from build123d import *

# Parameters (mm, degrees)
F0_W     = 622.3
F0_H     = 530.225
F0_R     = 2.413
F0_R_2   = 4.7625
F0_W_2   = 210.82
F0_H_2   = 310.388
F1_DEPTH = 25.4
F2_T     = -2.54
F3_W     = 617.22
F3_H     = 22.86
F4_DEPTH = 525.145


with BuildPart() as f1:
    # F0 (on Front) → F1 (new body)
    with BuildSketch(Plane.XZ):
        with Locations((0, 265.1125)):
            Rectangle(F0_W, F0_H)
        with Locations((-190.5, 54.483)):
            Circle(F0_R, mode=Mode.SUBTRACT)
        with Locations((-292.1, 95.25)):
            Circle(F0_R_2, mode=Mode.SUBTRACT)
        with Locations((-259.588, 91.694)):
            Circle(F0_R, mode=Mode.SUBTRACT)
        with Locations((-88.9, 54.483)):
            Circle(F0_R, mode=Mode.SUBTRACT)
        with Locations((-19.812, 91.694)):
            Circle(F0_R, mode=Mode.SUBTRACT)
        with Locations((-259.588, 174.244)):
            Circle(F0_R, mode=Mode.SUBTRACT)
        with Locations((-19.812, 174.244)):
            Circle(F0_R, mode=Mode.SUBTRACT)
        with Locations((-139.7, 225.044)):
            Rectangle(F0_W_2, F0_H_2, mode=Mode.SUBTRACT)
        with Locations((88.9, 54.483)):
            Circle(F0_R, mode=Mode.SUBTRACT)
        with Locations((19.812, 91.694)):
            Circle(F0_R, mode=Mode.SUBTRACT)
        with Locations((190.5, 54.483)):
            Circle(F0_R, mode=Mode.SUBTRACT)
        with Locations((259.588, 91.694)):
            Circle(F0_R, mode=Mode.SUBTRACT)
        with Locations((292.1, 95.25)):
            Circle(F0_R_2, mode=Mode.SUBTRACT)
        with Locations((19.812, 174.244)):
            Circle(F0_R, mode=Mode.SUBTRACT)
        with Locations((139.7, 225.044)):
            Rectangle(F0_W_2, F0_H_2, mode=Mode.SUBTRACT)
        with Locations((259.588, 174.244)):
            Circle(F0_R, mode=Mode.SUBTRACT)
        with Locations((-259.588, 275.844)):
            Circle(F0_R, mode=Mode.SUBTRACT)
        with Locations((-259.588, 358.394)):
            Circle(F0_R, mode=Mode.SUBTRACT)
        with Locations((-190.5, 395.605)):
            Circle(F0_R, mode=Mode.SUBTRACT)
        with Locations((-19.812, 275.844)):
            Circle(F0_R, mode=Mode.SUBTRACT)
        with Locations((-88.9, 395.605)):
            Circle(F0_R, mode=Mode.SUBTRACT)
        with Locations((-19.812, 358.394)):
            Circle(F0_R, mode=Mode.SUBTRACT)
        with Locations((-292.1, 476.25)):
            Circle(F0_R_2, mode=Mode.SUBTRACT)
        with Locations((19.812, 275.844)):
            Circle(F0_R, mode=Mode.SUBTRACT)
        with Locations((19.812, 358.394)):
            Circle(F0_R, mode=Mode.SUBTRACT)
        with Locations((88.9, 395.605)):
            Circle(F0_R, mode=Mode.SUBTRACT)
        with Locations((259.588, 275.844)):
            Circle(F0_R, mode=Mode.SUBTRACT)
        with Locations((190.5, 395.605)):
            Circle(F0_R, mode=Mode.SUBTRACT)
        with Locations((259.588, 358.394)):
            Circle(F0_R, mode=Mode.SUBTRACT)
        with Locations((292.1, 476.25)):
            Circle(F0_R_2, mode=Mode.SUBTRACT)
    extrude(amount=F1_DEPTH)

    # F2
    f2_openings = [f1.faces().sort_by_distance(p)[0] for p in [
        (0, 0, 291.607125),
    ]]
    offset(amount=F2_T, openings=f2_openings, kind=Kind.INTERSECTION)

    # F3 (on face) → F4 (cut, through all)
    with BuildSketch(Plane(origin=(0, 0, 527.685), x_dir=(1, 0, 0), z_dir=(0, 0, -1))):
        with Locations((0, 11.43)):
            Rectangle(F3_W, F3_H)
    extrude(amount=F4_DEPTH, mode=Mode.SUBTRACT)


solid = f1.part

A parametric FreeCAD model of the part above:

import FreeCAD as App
import Part
import Sketcher
Q = App.Units.Quantity


def faces_at(feature, points):
    """Names of the faces that lie closest to the given points."""
    faces = feature.Shape.Faces
    near = lambda p: min(range(len(faces)), key=lambda i: faces[i].distToShape(Part.Vertex(*p))[0])
    return sorted({f"Face{near(p) + 1}" for p in points})


def add_polygon(sketch, points):
    """Adds a closed chain of lines whose ends are joined by coincident constraints."""
    first, n = sketch.GeometryCount, len(points)
    for a, b in zip(points, points[1:] + points[:1]):
        sketch.addGeometry(Part.LineSegment(App.Vector(*a, 0), App.Vector(*b, 0)), False)
    for i in range(n):
        sketch.addConstraint(Sketcher.Constraint("Coincident", first + i, 2, first + (i + 1) % n, 1))

doc = App.newDocument("Part")
body = doc.addObject("PartDesign::Body", "Body")

# Sketch on XZ plane
sketch1 = body.newObject("Sketcher::SketchObject", "Sketch")
sketch1.AttachmentSupport = (doc.getObject("XZ_Plane"), [""])
sketch1.MapMode = "FlatFace"
add_polygon(sketch1, [(-311.1, 530.2), (-311.1, 0), (311.1, 0), (311.1, 530.2)])  # lines 0-3
sketch1.addGeometry(Part.Circle(App.Vector(-292.1, 95.2, 0), App.Vector(0, 0, 1), 4.8), False)  # 4
sketch1.addGeometry(Part.Circle(App.Vector(-259.6, 91.7, 0), App.Vector(0, 0, 1), 2.4), False)  # 5
sketch1.addGeometry(Part.Circle(App.Vector(-190.5, 54.5, 0), App.Vector(0, 0, 1), 2.4), False)  # 6
sketch1.addGeometry(Part.Circle(App.Vector(-88.9, 54.5, 0), App.Vector(0, 0, 1), 2.4), False)  # 7
sketch1.addGeometry(Part.Circle(App.Vector(-19.8, 91.7, 0), App.Vector(0, 0, 1), 2.4), False)  # 8
sketch1.addGeometry(Part.Circle(App.Vector(-259.6, 174.2, 0), App.Vector(0, 0, 1), 2.4), False)  # 9
sketch1.addGeometry(Part.Circle(App.Vector(-19.8, 174.2, 0), App.Vector(0, 0, 1), 2.4), False)  # 10
add_polygon(sketch1, [(-34.3, 69.8), (-245.1, 69.8), (-245.1, 380.2), (-34.3, 380.2)])  # lines 11-14
sketch1.addGeometry(Part.Circle(App.Vector(19.8, 91.7, 0), App.Vector(0, 0, 1), 2.4), False)  # 15
sketch1.addGeometry(Part.Circle(App.Vector(88.9, 54.5, 0), App.Vector(0, 0, 1), 2.4), False)  # 16
sketch1.addGeometry(Part.Circle(App.Vector(190.5, 54.5, 0), App.Vector(0, 0, 1), 2.4), False)  # 17
sketch1.addGeometry(Part.Circle(App.Vector(259.6, 91.7, 0), App.Vector(0, 0, 1), 2.4), False)  # 18
sketch1.addGeometry(Part.Circle(App.Vector(292.1, 95.2, 0), App.Vector(0, 0, 1), 4.8), False)  # 19
sketch1.addGeometry(Part.Circle(App.Vector(19.8, 174.2, 0), App.Vector(0, 0, 1), 2.4), False)  # 20
add_polygon(sketch1, [(245.1, 69.8), (34.3, 69.8), (34.3, 380.2), (245.1, 380.2)])  # lines 21-24
sketch1.addGeometry(Part.Circle(App.Vector(259.6, 174.2, 0), App.Vector(0, 0, 1), 2.4), False)  # 25
sketch1.addGeometry(Part.Circle(App.Vector(-259.6, 275.8, 0), App.Vector(0, 0, 1), 2.4), False)  # 26
sketch1.addGeometry(Part.Circle(App.Vector(-259.6, 358.4, 0), App.Vector(0, 0, 1), 2.4), False)  # 27
sketch1.addGeometry(Part.Circle(App.Vector(-19.8, 275.8, 0), App.Vector(0, 0, 1), 2.4), False)  # 28
sketch1.addGeometry(Part.Circle(App.Vector(-19.8, 358.4, 0), App.Vector(0, 0, 1), 2.4), False)  # 29
sketch1.addGeometry(Part.Circle(App.Vector(-190.5, 395.6, 0), App.Vector(0, 0, 1), 2.4), False)  # 30
sketch1.addGeometry(Part.Circle(App.Vector(-292.1, 476.2, 0), App.Vector(0, 0, 1), 4.8), False)  # 31
sketch1.addGeometry(Part.Circle(App.Vector(-88.9, 395.6, 0), App.Vector(0, 0, 1), 2.4), False)  # 32
sketch1.addGeometry(Part.Circle(App.Vector(19.8, 275.8, 0), App.Vector(0, 0, 1), 2.4), False)  # 33
sketch1.addGeometry(Part.Circle(App.Vector(19.8, 358.4, 0), App.Vector(0, 0, 1), 2.4), False)  # 34
sketch1.addGeometry(Part.Circle(App.Vector(259.6, 275.8, 0), App.Vector(0, 0, 1), 2.4), False)  # 35
sketch1.addGeometry(Part.Circle(App.Vector(259.6, 358.4, 0), App.Vector(0, 0, 1), 2.4), False)  # 36
sketch1.addGeometry(Part.Circle(App.Vector(88.9, 395.6, 0), App.Vector(0, 0, 1), 2.4), False)  # 37
sketch1.addGeometry(Part.Circle(App.Vector(190.5, 395.6, 0), App.Vector(0, 0, 1), 2.4), False)  # 38
sketch1.addGeometry(Part.Circle(App.Vector(292.1, 476.2, 0), App.Vector(0, 0, 1), 4.8), False)  # 39
sketch1.addConstraint(Sketcher.Constraint("Vertical", 0))
sketch1.addConstraint(Sketcher.Constraint("Horizontal", 1))
sketch1.addConstraint(Sketcher.Constraint("Vertical", 2))
sketch1.addConstraint(Sketcher.Constraint("Horizontal", 3))
sketch1.addConstraint(Sketcher.Constraint("Horizontal", 11))
sketch1.addConstraint(Sketcher.Constraint("Vertical", 12))
sketch1.addConstraint(Sketcher.Constraint("Horizontal", 13))
sketch1.addConstraint(Sketcher.Constraint("Vertical", 14))
sketch1.addConstraint(Sketcher.Constraint("Horizontal", 21))
sketch1.addConstraint(Sketcher.Constraint("Vertical", 22))
sketch1.addConstraint(Sketcher.Constraint("Horizontal", 23))
sketch1.addConstraint(Sketcher.Constraint("Vertical", 24))
sketch1.addConstraint(Sketcher.Constraint("Equal", 5, 6))
sketch1.addConstraint(Sketcher.Constraint("Equal", 6, 7))
sketch1.addConstraint(Sketcher.Constraint("Equal", 7, 8))
sketch1.addConstraint(Sketcher.Constraint("Equal", 8, 9))
sketch1.addConstraint(Sketcher.Constraint("Equal", 9, 10))
sketch1.addConstraint(Sketcher.Constraint("Equal", 10, 15))
sketch1.addConstraint(Sketcher.Constraint("Equal", 15, 16))
sketch1.addConstraint(Sketcher.Constraint("Equal", 16, 17))
sketch1.addConstraint(Sketcher.Constraint("Equal", 17, 18))
sketch1.addConstraint(Sketcher.Constraint("Equal", 4, 19))
sketch1.addConstraint(Sketcher.Constraint("Equal", 18, 20))
sketch1.addConstraint(Sketcher.Constraint("Equal", 20, 25))
sketch1.addConstraint(Sketcher.Constraint("Equal", 25, 26))
sketch1.addConstraint(Sketcher.Constraint("Equal", 26, 27))
sketch1.addConstraint(Sketcher.Constraint("Equal", 27, 28))
sketch1.addConstraint(Sketcher.Constraint("Equal", 28, 29))
sketch1.addConstraint(Sketcher.Constraint("Equal", 29, 30))
sketch1.addConstraint(Sketcher.Constraint("Equal", 19, 31))
sketch1.addConstraint(Sketcher.Constraint("Equal", 30, 32))
sketch1.addConstraint(Sketcher.Constraint("Equal", 32, 33))
sketch1.addConstraint(Sketcher.Constraint("Equal", 33, 34))
sketch1.addConstraint(Sketcher.Constraint("Equal", 34, 35))
sketch1.addConstraint(Sketcher.Constraint("Equal", 35, 36))
sketch1.addConstraint(Sketcher.Constraint("Equal", 36, 37))
sketch1.addConstraint(Sketcher.Constraint("Equal", 37, 38))
sketch1.addConstraint(Sketcher.Constraint("Equal", 31, 39))
sketch1.addConstraint(Sketcher.Constraint("Symmetric", 0, 2, 1, 2, -1, 1))
sketch1.addConstraint(Sketcher.Constraint("Symmetric", 8, 3, 15, 3, -2))
sketch1.addConstraint(Sketcher.Constraint("Symmetric", 7, 3, 16, 3, -2))
sketch1.addConstraint(Sketcher.Constraint("Symmetric", 6, 3, 17, 3, -2))
sketch1.addConstraint(Sketcher.Constraint("Symmetric", 5, 3, 18, 3, -2))
sketch1.addConstraint(Sketcher.Constraint("Symmetric", 4, 3, 19, 3, -2))
sketch1.addConstraint(Sketcher.Constraint("Symmetric", 10, 3, 20, 3, -2))
sketch1.addConstraint(Sketcher.Constraint("Symmetric", 9, 3, 25, 3, -2))
sketch1.addConstraint(Sketcher.Constraint("Symmetric", 28, 3, 33, 3, -2))
sketch1.addConstraint(Sketcher.Constraint("Symmetric", 29, 3, 34, 3, -2))
sketch1.addConstraint(Sketcher.Constraint("Symmetric", 26, 3, 35, 3, -2))
sketch1.addConstraint(Sketcher.Constraint("Symmetric", 27, 3, 36, 3, -2))
sketch1.addConstraint(Sketcher.Constraint("Symmetric", 32, 3, 37, 3, -2))
sketch1.addConstraint(Sketcher.Constraint("Symmetric", 30, 3, 38, 3, -2))
sketch1.addConstraint(Sketcher.Constraint("Symmetric", 31, 3, 39, 3, -2))
sketch1.addConstraint(Sketcher.Constraint("Symmetric", 14, 2, 21, 2, -2))
sketch1.addConstraint(Sketcher.Constraint("Symmetric", 12, 2, 23, 2, -2))
sketch1.addConstraint(Sketcher.Constraint("Horizontal", 6, 3, 7, 3))
sketch1.addConstraint(Sketcher.Constraint("Horizontal", 5, 3, 8, 3))
sketch1.addConstraint(Sketcher.Constraint("Horizontal", 9, 3, 10, 3))
sketch1.addConstraint(Sketcher.Constraint("Horizontal", 26, 3, 28, 3))
sketch1.addConstraint(Sketcher.Constraint("Horizontal", 27, 3, 29, 3))
sketch1.addConstraint(Sketcher.Constraint("Horizontal", 30, 3, 32, 3))
sketch1.addConstraint(Sketcher.Constraint("Vertical", 5, 3, 9, 3))
sketch1.addConstraint(Sketcher.Constraint("Vertical", 8, 3, 10, 3))
sketch1.addConstraint(Sketcher.Constraint("Vertical", 9, 3, 26, 3))
sketch1.addConstraint(Sketcher.Constraint("Vertical", 26, 3, 27, 3))
sketch1.addConstraint(Sketcher.Constraint("Vertical", 10, 3, 28, 3))
sketch1.addConstraint(Sketcher.Constraint("Vertical", 28, 3, 29, 3))
sketch1.addConstraint(Sketcher.Constraint("Vertical", 6, 3, 30, 3))
sketch1.addConstraint(Sketcher.Constraint("Vertical", 4, 3, 31, 3))
sketch1.addConstraint(Sketcher.Constraint("Vertical", 7, 3, 32, 3))
sketch1.addConstraint(Sketcher.Constraint("Diameter", 5, Q("0.19 in")))
sketch1.addConstraint(Sketcher.Constraint("Diameter", 4, Q("0.375 in")))
sketch1.addConstraint(Sketcher.Constraint("DistanceX", 1, 1, 1, 2, Q("24.5 in")))
sketch1.addConstraint(Sketcher.Constraint("DistanceX", 11, 2, 11, 1, Q("8.3 in")))
sketch1.addConstraint(Sketcher.Constraint("DistanceX", 4, 3, 6, 3, Q("4 in")))
sketch1.addConstraint(Sketcher.Constraint("DistanceX", 6, 3, 7, 3, Q("4 in")))
sketch1.addConstraint(Sketcher.Constraint("DistanceX", 5, 3, 15, 3, Q("11 in")))
sketch1.addConstraint(Sketcher.Constraint("DistanceX", 7, 3, 16, 3, Q("7 in")))
sketch1.addConstraint(Sketcher.Constraint("DistanceY", 9, 3, 26, 3, Q("4 in")))
sketch1.addConstraint(Sketcher.Constraint("DistanceY", 11, 2, 4, 3, Q("1 in")))
sketch1.addConstraint(Sketcher.Constraint("DistanceY", 12, 1, 12, 2, Q("12.22 in")))
sketch1.addConstraint(Sketcher.Constraint("DistanceY", 5, 3, 27, 3, Q("10.5 in")))
sketch1.addConstraint(Sketcher.Constraint("DistanceY", 38, 3, 2, 2, Q("5.3 in")))
sketch1.addConstraint(Sketcher.Constraint("DistanceX", 0, 2, 11, 2, Q("2.6 in")))
sketch1.addConstraint(Sketcher.Constraint("DistanceY", 0, 2, 0, 1, Q("20.875 in")))
sketch1.addConstraint(Sketcher.Constraint("DistanceY", -1, 1, 4, 3, Q("3.75 in")))
sketch1.addConstraint(Sketcher.Constraint("DistanceX", 5, 3, -1, 1, Q("10.22 in")))
sketch1.addConstraint(Sketcher.Constraint("DistanceY", -1, 1, 5, 3, Q("3.61 in")))
sketch1.addConstraint(Sketcher.Constraint("DistanceY", -1, 1, 9, 3, Q("6.86 in")))
sketch1.addConstraint(Sketcher.Constraint("DistanceY", -1, 1, 31, 3, Q("18.75 in")))
sketch1.addConstraint(Sketcher.Constraint("DistanceY", -1, 1, 6, 3, Q("2.145 in")))
pad1 = body.newObject("PartDesign::Pad", "Pad")
pad1.Profile = sketch1
pad1.Length = Q("1 in")
doc.recompute()

thickness = body.newObject("PartDesign::Thickness", "Thickness")
thickness.Base = (pad1, faces_at(pad1, [(0, 0, 265.113)]))
thickness.Value = Q("0.1 in")
thickness.Reversed = True
thickness.Join = "Intersection"

# Sketch on XY plane
sketch2 = body.newObject("Sketcher::SketchObject", "Sketch001")
sketch2.AttachmentSupport = (doc.getObject("XY_Plane"), [""])
sketch2.MapMode = "FlatFace"
sketch2.AttachmentOffset = App.Placement(App.Vector(0, 0, 20.775 * 25.4), App.Rotation())
add_polygon(sketch2, [(-309, -23), (-309, 0), (309, 0), (309, -23)])  # lines 0-3
sketch2.addConstraint(Sketcher.Constraint("Vertical", 0))
sketch2.addConstraint(Sketcher.Constraint("Horizontal", 1))
sketch2.addConstraint(Sketcher.Constraint("Vertical", 2))
sketch2.addConstraint(Sketcher.Constraint("Horizontal", 3))
sketch2.addConstraint(Sketcher.Constraint("Symmetric", 0, 2, 1, 2, -1, 1))
sketch2.addConstraint(Sketcher.Constraint("DistanceX", 1, 1, 1, 2, Q("24.3 in")))
sketch2.addConstraint(Sketcher.Constraint("DistanceY", 0, 1, 0, 2, Q("0.9 in")))
pocket1 = body.newObject("PartDesign::Pocket", "Pocket")
pocket1.Profile = sketch2
pocket1.Length = Q("20.675 in")

doc.recompute()
